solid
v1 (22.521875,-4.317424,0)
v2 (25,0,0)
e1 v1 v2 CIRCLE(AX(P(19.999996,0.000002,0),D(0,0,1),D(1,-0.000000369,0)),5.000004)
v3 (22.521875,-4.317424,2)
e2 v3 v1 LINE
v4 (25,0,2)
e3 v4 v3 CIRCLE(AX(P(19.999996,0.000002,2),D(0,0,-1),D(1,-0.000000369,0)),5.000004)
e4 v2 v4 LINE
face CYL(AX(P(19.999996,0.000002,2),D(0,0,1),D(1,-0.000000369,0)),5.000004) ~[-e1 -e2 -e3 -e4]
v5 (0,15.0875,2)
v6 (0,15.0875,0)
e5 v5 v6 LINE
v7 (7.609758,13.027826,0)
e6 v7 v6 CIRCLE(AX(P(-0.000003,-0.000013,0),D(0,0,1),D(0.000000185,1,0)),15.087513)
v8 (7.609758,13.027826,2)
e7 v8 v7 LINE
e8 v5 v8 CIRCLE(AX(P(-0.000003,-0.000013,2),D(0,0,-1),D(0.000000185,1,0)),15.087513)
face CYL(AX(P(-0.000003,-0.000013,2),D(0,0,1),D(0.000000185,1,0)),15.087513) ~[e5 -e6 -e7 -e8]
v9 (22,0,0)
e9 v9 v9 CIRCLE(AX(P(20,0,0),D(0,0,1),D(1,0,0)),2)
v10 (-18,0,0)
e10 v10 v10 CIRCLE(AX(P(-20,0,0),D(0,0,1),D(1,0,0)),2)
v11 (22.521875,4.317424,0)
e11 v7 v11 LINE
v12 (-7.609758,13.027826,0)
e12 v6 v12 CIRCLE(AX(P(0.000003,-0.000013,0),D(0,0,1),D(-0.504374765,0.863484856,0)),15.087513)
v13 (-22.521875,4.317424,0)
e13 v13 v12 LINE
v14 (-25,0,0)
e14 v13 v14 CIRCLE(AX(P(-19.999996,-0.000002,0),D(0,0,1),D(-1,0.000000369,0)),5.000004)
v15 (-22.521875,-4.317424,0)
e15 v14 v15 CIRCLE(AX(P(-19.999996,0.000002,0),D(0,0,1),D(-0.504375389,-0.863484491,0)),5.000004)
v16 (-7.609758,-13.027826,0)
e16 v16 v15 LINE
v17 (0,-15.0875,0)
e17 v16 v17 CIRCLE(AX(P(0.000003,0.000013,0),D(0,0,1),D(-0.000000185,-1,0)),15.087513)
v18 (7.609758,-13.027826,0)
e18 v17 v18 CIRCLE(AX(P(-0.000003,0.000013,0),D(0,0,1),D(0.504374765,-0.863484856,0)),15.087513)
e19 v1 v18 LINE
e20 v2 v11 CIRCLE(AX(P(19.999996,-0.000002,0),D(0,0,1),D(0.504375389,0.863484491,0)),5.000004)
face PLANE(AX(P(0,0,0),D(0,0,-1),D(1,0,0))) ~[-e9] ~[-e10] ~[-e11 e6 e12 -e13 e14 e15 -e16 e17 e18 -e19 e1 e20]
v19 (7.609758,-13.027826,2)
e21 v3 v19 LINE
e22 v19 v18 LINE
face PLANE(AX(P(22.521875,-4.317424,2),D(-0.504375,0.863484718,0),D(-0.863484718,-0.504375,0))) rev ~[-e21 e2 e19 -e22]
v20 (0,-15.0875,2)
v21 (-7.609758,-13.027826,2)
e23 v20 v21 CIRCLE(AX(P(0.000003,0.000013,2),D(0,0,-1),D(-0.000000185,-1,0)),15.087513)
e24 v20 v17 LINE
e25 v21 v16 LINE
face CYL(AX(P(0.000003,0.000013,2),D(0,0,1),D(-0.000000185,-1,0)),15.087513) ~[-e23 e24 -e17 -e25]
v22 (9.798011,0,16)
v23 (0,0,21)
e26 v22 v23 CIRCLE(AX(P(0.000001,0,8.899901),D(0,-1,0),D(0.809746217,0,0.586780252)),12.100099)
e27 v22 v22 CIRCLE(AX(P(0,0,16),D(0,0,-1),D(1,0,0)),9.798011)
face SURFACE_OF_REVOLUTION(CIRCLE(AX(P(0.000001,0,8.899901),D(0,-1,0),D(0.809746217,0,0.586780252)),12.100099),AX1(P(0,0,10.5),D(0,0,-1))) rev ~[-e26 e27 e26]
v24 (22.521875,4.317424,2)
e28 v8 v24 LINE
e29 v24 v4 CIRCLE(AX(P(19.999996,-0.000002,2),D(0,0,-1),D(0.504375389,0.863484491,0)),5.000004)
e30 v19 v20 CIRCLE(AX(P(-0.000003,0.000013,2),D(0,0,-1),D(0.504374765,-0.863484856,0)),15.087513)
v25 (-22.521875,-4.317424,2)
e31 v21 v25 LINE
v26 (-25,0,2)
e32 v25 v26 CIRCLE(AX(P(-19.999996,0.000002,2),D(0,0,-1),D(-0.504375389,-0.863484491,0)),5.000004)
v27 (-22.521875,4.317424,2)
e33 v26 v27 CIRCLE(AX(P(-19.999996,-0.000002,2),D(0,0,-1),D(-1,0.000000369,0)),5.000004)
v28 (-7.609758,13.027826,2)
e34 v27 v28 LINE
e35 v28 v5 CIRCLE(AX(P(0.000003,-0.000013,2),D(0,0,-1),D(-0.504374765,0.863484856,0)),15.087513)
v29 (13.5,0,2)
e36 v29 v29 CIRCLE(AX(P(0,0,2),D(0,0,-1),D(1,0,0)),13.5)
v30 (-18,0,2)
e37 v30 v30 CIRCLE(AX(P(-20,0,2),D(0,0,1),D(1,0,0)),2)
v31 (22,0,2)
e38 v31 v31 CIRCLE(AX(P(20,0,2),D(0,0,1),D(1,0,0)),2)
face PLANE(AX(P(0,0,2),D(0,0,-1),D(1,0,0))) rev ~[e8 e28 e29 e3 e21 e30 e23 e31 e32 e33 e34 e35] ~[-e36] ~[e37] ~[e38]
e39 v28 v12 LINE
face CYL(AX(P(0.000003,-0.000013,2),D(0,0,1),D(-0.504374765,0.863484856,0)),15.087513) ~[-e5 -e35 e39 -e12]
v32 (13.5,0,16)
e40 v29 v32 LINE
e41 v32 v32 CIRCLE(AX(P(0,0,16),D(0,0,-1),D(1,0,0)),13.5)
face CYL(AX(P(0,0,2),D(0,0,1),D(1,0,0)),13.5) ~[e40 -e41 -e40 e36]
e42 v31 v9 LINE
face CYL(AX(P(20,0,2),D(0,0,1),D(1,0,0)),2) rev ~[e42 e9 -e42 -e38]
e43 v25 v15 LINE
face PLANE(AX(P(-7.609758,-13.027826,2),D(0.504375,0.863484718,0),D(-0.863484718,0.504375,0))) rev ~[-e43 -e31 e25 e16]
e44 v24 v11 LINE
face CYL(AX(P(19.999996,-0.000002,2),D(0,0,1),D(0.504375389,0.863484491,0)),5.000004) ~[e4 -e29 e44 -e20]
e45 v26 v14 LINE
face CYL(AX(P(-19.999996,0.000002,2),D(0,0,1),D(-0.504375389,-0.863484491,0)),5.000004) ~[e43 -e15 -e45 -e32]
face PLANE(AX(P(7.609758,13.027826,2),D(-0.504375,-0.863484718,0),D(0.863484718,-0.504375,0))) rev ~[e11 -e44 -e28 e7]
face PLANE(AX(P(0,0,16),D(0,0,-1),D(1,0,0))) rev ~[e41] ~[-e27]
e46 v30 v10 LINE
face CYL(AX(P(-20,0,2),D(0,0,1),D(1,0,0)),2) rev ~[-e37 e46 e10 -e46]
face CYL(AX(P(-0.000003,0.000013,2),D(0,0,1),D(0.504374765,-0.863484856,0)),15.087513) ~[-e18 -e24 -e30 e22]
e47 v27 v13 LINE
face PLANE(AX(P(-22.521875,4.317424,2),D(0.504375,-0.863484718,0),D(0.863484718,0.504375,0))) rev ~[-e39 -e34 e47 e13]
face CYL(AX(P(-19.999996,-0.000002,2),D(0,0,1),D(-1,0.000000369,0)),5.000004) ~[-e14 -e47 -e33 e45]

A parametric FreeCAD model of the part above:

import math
import FreeCAD as App
import Part
import Sketcher
from FreeCAD import Vector
Q = App.Units.Quantity

doc = App.newDocument("Part")
params = doc.addObject("Spreadsheet::Sheet", "Params")
for row, (alias, value) in enumerate([
    ("sketch1_width", "25 mm"),
    ("sketch1_height", "21 mm"),
    ("sketch1_height2", "2 mm"),
    ("sketch1_height3", "14 mm"),
    ("sketch1_width2", "11.5 mm"),
    ("revolution_angle", "360 deg"),
    ("sketch2_diameter", "4 mm"),
], start=1):
    params.set(f"A{row}", alias)
    params.set(f"B{row}", "=" + value)
    params.setAlias(f"B{row}", alias)

body = doc.addObject("PartDesign::Body", "Body")

# Sketch on XZ plane
sketch1 = body.newObject("Sketcher::SketchObject", "Sketch")
sketch1.AttachmentSupport = (doc.getObject("XZ_Plane"), [""])
sketch1.MapMode = "FlatFace"
sketch1.addGeometry([
    Part.LineSegment(Vector(13.5, 16, 0), Vector(9.8, 16, 0)),  # 0
    Part.ArcOfCircle(Part.Circle(Vector(0, 8.9, 0), Vector(0, 0, 1), 12.1), math.radians(36), math.radians(90)),  # 1
    Part.LineSegment(Vector(0, 21, 0), Vector(0, 0, 0)),  # 2
    Part.LineSegment(Vector(0, 0, 0), Vector(25, 0, 0)),  # 3
    Part.LineSegment(Vector(25, 0, 0), Vector(25, 2, 0)),  # 4
    Part.LineSegment(Vector(25, 2, 0), Vector(13.5, 2, 0)),  # 5
    Part.LineSegment(Vector(13.5, 2, 0), Vector(13.5, 16, 0)),  # 6
], False)
sketch1.addConstraint([
    Sketcher.Constraint("Coincident", 0, 2, 1, 1),
    Sketcher.Constraint("Coincident", 1, 2, 2, 1),
    Sketcher.Constraint("Coincident", 2, 2, 3, 1),
    Sketcher.Constraint("Coincident", 3, 2, 4, 1),
    Sketcher.Constraint("Coincident", 4, 2, 5, 1),
    Sketcher.Constraint("Coincident", 5, 2, 6, 1),
    Sketcher.Constraint("Coincident", 6, 2, 0, 1),
    Sketcher.Constraint("Horizontal", 0),
    Sketcher.Constraint("Vertical", 2),
    Sketcher.Constraint("Horizontal", 3),
    Sketcher.Constraint("Vertical", 4),
    Sketcher.Constraint("Horizontal", 5),
    Sketcher.Constraint("Vertical", 6),
    Sketcher.Constraint("Coincident", 2, 2, -1, 1),
    Sketcher.Constraint("PointOnObject", 1, 3, -2),
    Sketcher.Constraint("DistanceX", 3, 1, 3, 2, Q("25 mm")),
    Sketcher.Constraint("DistanceY", 2, 2, 2, 1, Q("21 mm")),
    Sketcher.Constraint("DistanceY", 4, 1, 4, 2, Q("2 mm")),
    Sketcher.Constraint("DistanceY", 6, 1, 6, 2, Q("14 mm")),
    Sketcher.Constraint("DistanceX", 5, 2, 5, 1, Q("11.5 mm")),
    Sketcher.Constraint("Radius", 1, Q("12.100099 mm")),
])
sketch1.setExpression("Constraints[15]", "Params.sketch1_width")
sketch1.setExpression("Constraints[16]", "Params.sketch1_height")
sketch1.setExpression("Constraints[17]", "Params.sketch1_height2")
sketch1.setExpression("Constraints[18]", "Params.sketch1_height3")
sketch1.setExpression("Constraints[19]", "Params.sketch1_width2")
revolution = body.newObject("PartDesign::Revolution", "Revolution")
revolution.Profile = sketch1
revolution.ReferenceAxis = (sketch1, ["V_Axis"])
revolution.setExpression("Angle", "Params.revolution_angle")

# Sketch on XY plane
sketch2 = body.newObject("Sketcher::SketchObject", "Sketch001")
sketch2.AttachmentSupport = (doc.getObject("XY_Plane"), [""])
sketch2.MapMode = "FlatFace"
sketch2.AttachmentOffset = App.Placement(Vector(0, 0, 2), App.Rotation())
sketch2.addGeometry([
    Part.Circle(Vector(0, 0, 0), Vector(0, 0, 1), 29.922306),  # 0
    Part.ArcOfCircle(Part.Circle(Vector(-19.999996, 0.000002, 0), Vector(0, 0, 1), 5.000004), math.radians(-179.999979), math.radians(-120.289898)),  # 1
    Part.ArcOfCircle(Part.Circle(Vector(-19.999996, -0.000002, 0), Vector(0, 0, 1), 5.000004), math.radians(120.289898), math.radians(179.999979)),  # 2
    Part.LineSegment(Vector(-22.521875, 4.317424, 0), Vector(-7.609758, 13.027826, 0)),  # 3
    Part.ArcOfCircle(Part.Circle(Vector(0.000003, -0.000013, 0), Vector(0, 0, 1), 15.087513), math.radians(90.000011), math.radians(120.289857)),  # 4
    Part.ArcOfCircle(Part.Circle(Vector(-0.000003, -0.000013, 0), Vector(0, 0, 1), 15.087513), math.radians(59.710143), math.radians(89.999989)),  # 5
    Part.LineSegment(Vector(7.609758, 13.027826, 0), Vector(22.521875, 4.317424, 0)),  # 6
    Part.ArcOfCircle(Part.Circle(Vector(19.999996, -0.000002, 0), Vector(0, 0, 1), 5.000004), math.radians(0.000021), math.radians(59.710102)),  # 7
    Part.ArcOfCircle(Part.Circle(Vector(19.999996, 0.000002, 0), Vector(0, 0, 1), 5.000004), math.radians(-59.710102), math.radians(-0.000021)),  # 8
    Part.LineSegment(Vector(22.521875, -4.317424, 0), Vector(7.609758, -13.027826, 0)),  # 9
    Part.ArcOfCircle(Part.Circle(Vector(-0.000003, 0.000013, 0), Vector(0, 0, 1), 15.087513), math.radians(-89.999989), math.radians(-59.710143)),  # 10
    Part.ArcOfCircle(Part.Circle(Vector(0.000003, 0.000013, 0), Vector(0, 0, 1), 15.087513), math.radians(-120.289857), math.radians(-90.000011)),  # 11
    Part.LineSegment(Vector(-7.609758, -13.027826, 0), Vector(-22.521875, -4.317424, 0)),  # 12
    Part.Circle(Vector(-20, 0, 0), Vector(0, 0, 1), 2),  # 13
    Part.Circle(Vector(20, 0, 0), Vector(0, 0, 1), 2),  # 14
], False)
sketch2.addConstraint([
    Sketcher.Constraint("Tangent", 1, 1, 2, 2),
    Sketcher.Constraint("Tangent", 2, 1, 3, 1),
    Sketcher.Constraint("Tangent", 3, 2, 4, 2),
    Sketcher.Constraint("Tangent", 4, 1, 5, 2),
    Sketcher.Constraint("Tangent", 5, 1, 6, 1),
    Sketcher.Constraint("Tangent", 6, 2, 7, 2),
    Sketcher.Constraint("Tangent", 7, 1, 8, 2),
    Sketcher.Constraint("Tangent", 8, 1, 9, 1),
    Sketcher.Constraint("Tangent", 9, 2, 10, 2),
    Sketcher.Constraint("Tangent", 10, 1, 11, 2),
    Sketcher.Constraint("Tangent", 11, 1, 12, 1),
    Sketcher.Constraint("Tangent", 12, 2, 1, 2),
    Sketcher.Constraint("Coincident", 0, 3, -1, 1),
    Sketcher.Constraint("Coincident", 13, 3, 1, 3),
    Sketcher.Constraint("Coincident", 14, 3, 7, 3),
    Sketcher.Constraint("Equal", 1, 2),
    Sketcher.Constraint("Equal", 4, 5),
    Sketcher.Constraint("Equal", 2, 7),
    Sketcher.Constraint("Equal", 7, 8),
    Sketcher.Constraint("Equal", 5, 10),
    Sketcher.Constraint("Equal", 10, 11),
    Sketcher.Constraint("Equal", 13, 14),
    Sketcher.Constraint("Symmetric", 1, 3, 7, 3, -1, 1),
    Sketcher.Constraint("Symmetric", 4, 3, 10, 3, -1, 1),
    Sketcher.Constraint("Symmetric", 3, 2, 5, 1, -2),
    Sketcher.Constraint("PointOnObject", 1, 1, -1),
    Sketcher.Constraint("PointOnObject", 4, 1, -2),
    Sketcher.Constraint("PointOnObject", 7, 1, -1),
    Sketcher.Constraint("PointOnObject", 10, 1, -2),
    Sketcher.Constraint("Diameter", 13, Q("4 mm")),
    Sketcher.Constraint("DistanceX", 13, 3, -1, 1, Q("20 mm")),
    Sketcher.Constraint("DistanceX", 1, 1, -1, 1, Q("25 mm")),
    Sketcher.Constraint("Diameter", 0, Q("59.844612 mm")),
    Sketcher.Constraint("Radius", 4, Q("15.087513 mm")),
    Sketcher.Constraint("DistanceY", -1, 1, 4, 1, Q("15.0875 mm")),
])
sketch2.setExpression("Constraints[29]", "Params.sketch2_diameter")
pocket1 = body.newObject("PartDesign::Pocket", "Pocket")
pocket1.Profile = sketch2
pocket1.Type = "ThroughAll"

doc.recompute()
